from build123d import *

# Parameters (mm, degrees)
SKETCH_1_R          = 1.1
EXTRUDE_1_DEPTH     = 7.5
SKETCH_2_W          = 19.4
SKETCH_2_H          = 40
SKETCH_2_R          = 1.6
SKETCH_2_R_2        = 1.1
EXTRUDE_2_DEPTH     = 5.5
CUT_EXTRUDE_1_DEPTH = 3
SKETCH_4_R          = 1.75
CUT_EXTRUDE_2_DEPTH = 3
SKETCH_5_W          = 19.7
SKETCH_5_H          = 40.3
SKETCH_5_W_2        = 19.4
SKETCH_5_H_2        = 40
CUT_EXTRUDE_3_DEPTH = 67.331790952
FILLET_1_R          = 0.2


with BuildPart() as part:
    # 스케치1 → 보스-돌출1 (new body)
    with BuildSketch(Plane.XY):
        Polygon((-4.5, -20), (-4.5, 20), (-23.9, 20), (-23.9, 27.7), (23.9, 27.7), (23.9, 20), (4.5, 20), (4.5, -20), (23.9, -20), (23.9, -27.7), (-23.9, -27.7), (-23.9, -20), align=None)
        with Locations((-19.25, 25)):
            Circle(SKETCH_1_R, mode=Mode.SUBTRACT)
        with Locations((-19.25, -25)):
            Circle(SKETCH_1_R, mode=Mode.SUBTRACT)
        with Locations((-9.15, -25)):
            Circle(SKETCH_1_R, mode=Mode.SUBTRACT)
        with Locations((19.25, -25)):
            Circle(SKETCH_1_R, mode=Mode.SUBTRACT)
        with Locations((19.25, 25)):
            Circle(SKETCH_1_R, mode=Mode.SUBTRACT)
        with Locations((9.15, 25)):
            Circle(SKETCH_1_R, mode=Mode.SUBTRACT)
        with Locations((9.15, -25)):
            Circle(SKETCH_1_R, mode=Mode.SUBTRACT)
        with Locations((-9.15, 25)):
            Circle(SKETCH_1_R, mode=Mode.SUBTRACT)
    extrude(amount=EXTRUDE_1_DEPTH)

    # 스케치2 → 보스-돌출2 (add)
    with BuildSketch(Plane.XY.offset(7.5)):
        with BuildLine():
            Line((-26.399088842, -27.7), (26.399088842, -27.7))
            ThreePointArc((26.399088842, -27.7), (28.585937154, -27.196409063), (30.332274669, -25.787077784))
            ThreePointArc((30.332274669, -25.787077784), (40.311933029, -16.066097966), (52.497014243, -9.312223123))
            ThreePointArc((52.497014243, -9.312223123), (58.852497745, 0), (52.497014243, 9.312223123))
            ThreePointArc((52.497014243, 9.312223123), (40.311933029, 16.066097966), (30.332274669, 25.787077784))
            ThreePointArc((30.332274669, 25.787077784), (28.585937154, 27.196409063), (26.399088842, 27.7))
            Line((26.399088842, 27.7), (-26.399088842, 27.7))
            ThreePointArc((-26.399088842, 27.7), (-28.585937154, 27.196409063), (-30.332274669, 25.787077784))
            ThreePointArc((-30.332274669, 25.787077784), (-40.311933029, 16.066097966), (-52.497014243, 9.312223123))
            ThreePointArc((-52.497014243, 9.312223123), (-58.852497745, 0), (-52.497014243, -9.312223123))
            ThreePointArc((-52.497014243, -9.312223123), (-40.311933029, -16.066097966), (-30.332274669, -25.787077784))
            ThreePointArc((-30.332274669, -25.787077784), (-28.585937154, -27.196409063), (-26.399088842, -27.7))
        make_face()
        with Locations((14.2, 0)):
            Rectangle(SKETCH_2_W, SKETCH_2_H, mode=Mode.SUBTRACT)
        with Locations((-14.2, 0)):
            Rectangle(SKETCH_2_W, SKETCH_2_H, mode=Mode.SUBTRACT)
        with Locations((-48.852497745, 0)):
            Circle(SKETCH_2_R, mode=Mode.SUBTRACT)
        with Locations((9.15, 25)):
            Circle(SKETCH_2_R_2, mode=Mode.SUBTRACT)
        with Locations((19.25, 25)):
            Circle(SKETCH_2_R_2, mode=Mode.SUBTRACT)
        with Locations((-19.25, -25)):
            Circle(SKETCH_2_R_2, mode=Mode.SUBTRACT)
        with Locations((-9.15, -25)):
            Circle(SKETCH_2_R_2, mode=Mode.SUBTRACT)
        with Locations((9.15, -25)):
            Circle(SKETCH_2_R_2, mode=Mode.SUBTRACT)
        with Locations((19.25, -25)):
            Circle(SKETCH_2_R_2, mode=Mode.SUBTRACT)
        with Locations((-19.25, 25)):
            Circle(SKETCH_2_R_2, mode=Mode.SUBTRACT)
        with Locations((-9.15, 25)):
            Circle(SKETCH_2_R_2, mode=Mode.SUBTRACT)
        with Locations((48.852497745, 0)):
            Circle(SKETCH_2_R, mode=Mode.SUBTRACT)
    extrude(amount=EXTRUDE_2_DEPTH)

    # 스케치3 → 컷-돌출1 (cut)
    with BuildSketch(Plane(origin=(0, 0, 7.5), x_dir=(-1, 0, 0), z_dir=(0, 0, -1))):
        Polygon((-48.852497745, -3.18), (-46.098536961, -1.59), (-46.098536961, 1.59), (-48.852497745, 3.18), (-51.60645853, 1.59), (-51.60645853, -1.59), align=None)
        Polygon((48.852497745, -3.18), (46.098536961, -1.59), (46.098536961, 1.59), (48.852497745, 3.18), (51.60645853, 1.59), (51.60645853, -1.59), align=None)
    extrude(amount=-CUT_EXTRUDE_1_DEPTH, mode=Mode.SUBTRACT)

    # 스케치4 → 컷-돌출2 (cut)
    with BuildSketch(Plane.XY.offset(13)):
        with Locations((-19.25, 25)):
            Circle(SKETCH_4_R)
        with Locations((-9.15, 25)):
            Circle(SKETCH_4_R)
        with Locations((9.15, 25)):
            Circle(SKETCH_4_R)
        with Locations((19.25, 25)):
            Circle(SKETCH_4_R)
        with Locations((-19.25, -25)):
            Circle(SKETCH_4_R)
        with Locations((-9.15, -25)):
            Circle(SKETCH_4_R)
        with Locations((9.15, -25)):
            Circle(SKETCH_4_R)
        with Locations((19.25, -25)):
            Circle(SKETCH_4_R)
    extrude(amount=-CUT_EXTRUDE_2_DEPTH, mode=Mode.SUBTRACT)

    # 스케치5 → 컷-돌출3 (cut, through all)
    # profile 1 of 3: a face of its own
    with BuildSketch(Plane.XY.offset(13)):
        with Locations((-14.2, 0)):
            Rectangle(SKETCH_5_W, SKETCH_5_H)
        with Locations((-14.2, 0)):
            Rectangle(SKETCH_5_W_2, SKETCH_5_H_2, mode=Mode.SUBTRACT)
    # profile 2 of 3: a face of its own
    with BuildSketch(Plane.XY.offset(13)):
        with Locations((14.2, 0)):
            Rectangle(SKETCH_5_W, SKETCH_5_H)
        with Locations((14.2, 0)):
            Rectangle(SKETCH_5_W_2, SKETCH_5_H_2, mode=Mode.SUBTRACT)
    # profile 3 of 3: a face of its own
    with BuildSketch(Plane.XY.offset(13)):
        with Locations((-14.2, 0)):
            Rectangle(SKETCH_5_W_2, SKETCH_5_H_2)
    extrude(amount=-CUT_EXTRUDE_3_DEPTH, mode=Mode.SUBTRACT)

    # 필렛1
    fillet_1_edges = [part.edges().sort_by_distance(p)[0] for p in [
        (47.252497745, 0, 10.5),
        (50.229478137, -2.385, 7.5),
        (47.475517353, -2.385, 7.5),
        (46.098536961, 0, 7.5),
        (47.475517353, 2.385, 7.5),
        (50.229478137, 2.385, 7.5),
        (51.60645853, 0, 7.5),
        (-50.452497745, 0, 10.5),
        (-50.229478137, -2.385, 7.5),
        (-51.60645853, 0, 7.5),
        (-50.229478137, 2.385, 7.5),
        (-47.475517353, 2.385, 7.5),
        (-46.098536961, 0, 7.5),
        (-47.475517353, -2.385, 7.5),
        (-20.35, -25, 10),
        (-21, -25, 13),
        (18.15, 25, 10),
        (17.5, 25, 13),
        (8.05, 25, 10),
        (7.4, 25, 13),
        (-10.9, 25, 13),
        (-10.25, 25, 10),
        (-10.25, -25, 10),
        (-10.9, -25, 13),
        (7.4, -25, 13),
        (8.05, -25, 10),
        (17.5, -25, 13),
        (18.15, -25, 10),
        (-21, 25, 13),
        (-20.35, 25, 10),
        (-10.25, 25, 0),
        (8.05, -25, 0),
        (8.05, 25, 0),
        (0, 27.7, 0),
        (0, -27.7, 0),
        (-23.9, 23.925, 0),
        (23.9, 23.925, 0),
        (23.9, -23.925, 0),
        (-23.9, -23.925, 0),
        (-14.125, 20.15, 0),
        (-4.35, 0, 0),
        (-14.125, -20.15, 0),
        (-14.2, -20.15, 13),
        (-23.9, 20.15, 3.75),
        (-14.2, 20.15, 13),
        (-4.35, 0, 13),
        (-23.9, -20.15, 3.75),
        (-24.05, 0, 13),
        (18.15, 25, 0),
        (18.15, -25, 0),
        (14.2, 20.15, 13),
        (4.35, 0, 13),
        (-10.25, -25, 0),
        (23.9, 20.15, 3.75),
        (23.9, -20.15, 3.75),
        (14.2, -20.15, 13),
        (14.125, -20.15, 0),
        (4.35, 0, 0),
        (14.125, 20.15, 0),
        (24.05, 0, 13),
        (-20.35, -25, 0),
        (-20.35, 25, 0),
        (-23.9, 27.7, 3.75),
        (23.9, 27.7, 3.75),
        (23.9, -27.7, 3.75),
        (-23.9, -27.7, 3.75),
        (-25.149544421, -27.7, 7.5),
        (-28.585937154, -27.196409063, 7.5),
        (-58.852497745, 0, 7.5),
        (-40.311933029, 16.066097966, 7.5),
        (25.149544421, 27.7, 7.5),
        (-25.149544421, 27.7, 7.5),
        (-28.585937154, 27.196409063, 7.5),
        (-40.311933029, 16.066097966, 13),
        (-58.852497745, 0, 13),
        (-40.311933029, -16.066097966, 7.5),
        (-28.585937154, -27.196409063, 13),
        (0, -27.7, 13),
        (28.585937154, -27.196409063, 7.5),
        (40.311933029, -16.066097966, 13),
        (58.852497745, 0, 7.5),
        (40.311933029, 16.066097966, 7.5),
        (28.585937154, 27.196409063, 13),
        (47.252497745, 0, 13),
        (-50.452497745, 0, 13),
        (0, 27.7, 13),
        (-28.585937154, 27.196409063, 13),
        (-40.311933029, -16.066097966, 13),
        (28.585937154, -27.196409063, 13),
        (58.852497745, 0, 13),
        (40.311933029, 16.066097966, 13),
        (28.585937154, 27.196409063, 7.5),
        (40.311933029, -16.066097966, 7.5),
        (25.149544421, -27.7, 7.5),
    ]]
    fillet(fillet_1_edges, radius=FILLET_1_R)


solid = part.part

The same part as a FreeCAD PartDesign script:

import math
import FreeCAD as App
import Part
import Sketcher

V = App.Vector
Q = App.Units.Quantity


def edges_at(feature, points):
    """Names of the edges that pass closest to the given points."""
    edges = feature.Shape.Edges
    near = lambda p: min(range(len(edges)), key=lambda i: edges[i].distToShape(Part.Vertex(*p))[0])
    return sorted({f"Edge{near(p) + 1}" for p in points})


def add_polygon(sketch, points):
    """Adds a closed chain of lines whose ends are joined by coincident constraints."""
    first, n = sketch.GeometryCount, len(points)
    for a, b in zip(points, points[1:] + points[:1]):
        sketch.addGeometry(Part.LineSegment(App.Vector(*a, 0), App.Vector(*b, 0)), False)
    for i in range(n):
        sketch.addConstraint(Sketcher.Constraint("Coincident", first + i, 2, first + (i + 1) % n, 1))

doc = App.newDocument("Part")
body = doc.addObject("PartDesign::Body", "Body")

# Sketch on XY plane
sketch1 = body.newObject("Sketcher::SketchObject", "Sketch")
sketch1.AttachmentSupport = (doc.getObject("XY_Plane"), [""])
sketch1.MapMode = "FlatFace"
add_polygon(sketch1, [(-4.5, 20), (-4.5, -20), (-23.9, -20), (-23.9, -27.7), (23.9, -27.7), (23.9, -20), (4.5, -20), (4.5, 20), (23.9, 20), (23.9, 27.7), (-23.9, 27.7), (-23.9, 20)])  # lines 0-11
sketch1.addGeometry(Part.Circle(V(19.2, -25, 0), V(0, 0, 1), 1.1), False)  # 12
sketch1.addGeometry(Part.Circle(V(9.2, -25, 0), V(0, 0, 1), 1.1), False)  # 13
sketch1.addGeometry(Part.Circle(V(-9.2, -25, 0), V(0, 0, 1), 1.1), False)  # 14
sketch1.addGeometry(Part.Circle(V(-19.2, -25, 0), V(0, 0, 1), 1.1), False)  # 15
sketch1.addGeometry(Part.Circle(V(19.2, 25, 0), V(0, 0, 1), 1.1), False)  # 16
sketch1.addGeometry(Part.Circle(V(9.2, 25, 0), V(0, 0, 1), 1.1), False)  # 17
sketch1.addGeometry(Part.Circle(V(-9.2, 25, 0), V(0, 0, 1), 1.1), False)  # 18
sketch1.addGeometry(Part.Circle(V(-19.2, 25, 0), V(0, 0, 1), 1.1), False)  # 19
sketch1.addConstraint([
    Sketcher.Constraint("Vertical", 0),
    Sketcher.Constraint("Horizontal", 1),
    Sketcher.Constraint("Vertical", 2),
    Sketcher.Constraint("Horizontal", 3),
    Sketcher.Constraint("Vertical", 4),
    Sketcher.Constraint("Horizontal", 5),
    Sketcher.Constraint("Vertical", 6),
    Sketcher.Constraint("Horizontal", 7),
    Sketcher.Constraint("Vertical", 8),
    Sketcher.Constraint("Horizontal", 9),
    Sketcher.Constraint("Vertical", 10),
    Sketcher.Constraint("Horizontal", 11),
    Sketcher.Constraint("Equal", 12, 13),
    Sketcher.Constraint("Equal", 13, 14),
    Sketcher.Constraint("Equal", 14, 15),
    Sketcher.Constraint("Equal", 15, 16),
    Sketcher.Constraint("Equal", 16, 17),
    Sketcher.Constraint("Equal", 17, 18),
    Sketcher.Constraint("Equal", 18, 19),
    Sketcher.Constraint("Symmetric", 15, 3, 16, 3, -1, 1),
    Sketcher.Constraint("Symmetric", 14, 3, 17, 3, -1, 1),
    Sketcher.Constraint("Symmetric", 13, 3, 18, 3, -1, 1),
    Sketcher.Constraint("Symmetric", 12, 3, 19, 3, -1, 1),
    Sketcher.Constraint("Symmetric", 0, 2, 6, 2, -1, 1),
    Sketcher.Constraint("Symmetric", 2, 2, 8, 2, -1, 1),
    Sketcher.Constraint("Symmetric", 4, 2, 10, 2, -1, 1),
    Sketcher.Constraint("Symmetric", 13, 3, 14, 3, -2),
    Sketcher.Constraint("Symmetric", 12, 3, 15, 3, -2),
    Sketcher.Constraint("Symmetric", 1, 2, 4, 2, -2),
    Sketcher.Constraint("Horizontal", 12, 3, 13, 3),
    Sketcher.Constraint("Diameter", 12, 2.2),
    Sketcher.Constraint("DistanceY", 0, 2, 0, 1, 40.0),
    Sketcher.Constraint("DistanceX", 1, 2, 1, 1, 19.4),
    Sketcher.Constraint("DistanceX", 3, 1, 3, 2, 47.8),
    Sketcher.Constraint("DistanceY", 2, 2, 2, 1, 7.7),
    Sketcher.Constraint("DistanceY", 12, 3, -1, 1, 25.0),
    Sketcher.Constraint("DistanceX", 13, 3, 12, 3, 10.1),
    Sketcher.Constraint("DistanceX", 14, 3, 13, 3, 18.3),
])
pad1 = body.newObject("PartDesign::Pad", "Pad")
pad1.Profile = sketch1
pad1.Length = 7.5

# Sketch on XY plane
sketch2 = body.newObject("Sketcher::SketchObject", "Sketch001")
sketch2.AttachmentSupport = (doc.getObject("XY_Plane"), [""])
sketch2.MapMode = "FlatFace"
sketch2.AttachmentOffset = App.Placement(V(0, 0, 7.5), App.Rotation())
sketch2.addGeometry(Part.LineSegment(V(-26.4, -27.7, 0), V(26.4, -27.7, 0)), False)  # 0
sketch2.addGeometry(Part.ArcOfCircle(Part.Circle(V(26.4, -22.7, 0), V(0, 0, 1), 5), math.radians(-90), math.radians(-38)), False)  # 1
sketch2.addGeometry(Part.ArcOfCircle(Part.Circle(V(71.6, -58.2, 0), V(0, 0, 1), 52.5), math.radians(111), math.radians(142)), False)  # 2
sketch2.addGeometry(Part.ArcOfCircle(Part.Circle(V(48.9, 0, 0), V(0, 0, 1), 10), math.radians(-69), math.radians(69)), False)  # 3
sketch2.addGeometry(Part.ArcOfCircle(Part.Circle(V(71.6, 58.2, 0), V(0, 0, 1), 52.5), math.radians(-142), math.radians(-111)), False)  # 4
sketch2.addGeometry(Part.ArcOfCircle(Part.Circle(V(26.4, 22.7, 0), V(0, 0, 1), 5), math.radians(38), math.radians(90)), False)  # 5
sketch2.addGeometry(Part.LineSegment(V(26.4, 27.7, 0), V(-26.4, 27.7, 0)), False)  # 6
sketch2.addGeometry(Part.ArcOfCircle(Part.Circle(V(-26.4, 22.7, 0), V(0, 0, 1), 5), math.radians(90), math.radians(142)), False)  # 7
sketch2.addGeometry(Part.ArcOfCircle(Part.Circle(V(-71.6, 58.2, 0), V(0, 0, 1), 52.5), math.radians(-69), math.radians(-38)), False)  # 8
sketch2.addGeometry(Part.ArcOfCircle(Part.Circle(V(-48.9, 0, 0), V(0, 0, 1), 10), math.radians(111), math.radians(249)), False)  # 9
sketch2.addGeometry(Part.ArcOfCircle(Part.Circle(V(-71.6, -58.2, 0), V(0, 0, 1), 52.5), math.radians(38), math.radians(69)), False)  # 10
sketch2.addGeometry(Part.ArcOfCircle(Part.Circle(V(-26.4, -22.7, 0), V(0, 0, 1), 5), math.radians(-142), math.radians(-90)), False)  # 11
sketch2.addGeometry(Part.Circle(V(-19.2, -25, 0), V(0, 0, 1), 1.1), False)  # 12
sketch2.addGeometry(Part.Circle(V(-9.2, -25, 0), V(0, 0, 1), 1.1), False)  # 13
sketch2.addGeometry(Part.Circle(V(9.2, -25, 0), V(0, 0, 1), 1.1), False)  # 14
sketch2.addGeometry(Part.Circle(V(19.2, -25, 0), V(0, 0, 1), 1.1), False)  # 15
sketch2.addGeometry(Part.Circle(V(-48.9, 0, 0), V(0, 0, 1), 1.6), False)  # 16
add_polygon(sketch2, [(-4.5, -20), (-23.9, -20), (-23.9, 20), (-4.5, 20)])  # lines 17-20
sketch2.addGeometry(Part.Circle(V(-19.2, 25, 0), V(0, 0, 1), 1.1), False)  # 21
sketch2.addGeometry(Part.Circle(V(-9.2, 25, 0), V(0, 0, 1), 1.1), False)  # 22
add_polygon(sketch2, [(23.9, -20), (4.5, -20), (4.5, 20), (23.9, 20)])  # lines 23-26
sketch2.addGeometry(Part.Circle(V(48.9, 0, 0), V(0, 0, 1), 1.6), False)  # 27
sketch2.addGeometry(Part.Circle(V(9.2, 25, 0), V(0, 0, 1), 1.1), False)  # 28
sketch2.addGeometry(Part.Circle(V(19.2, 25, 0), V(0, 0, 1), 1.1), False)  # 29
sketch2.addConstraint([
    Sketcher.Constraint("Tangent", 0, 2, 1, 1),
    Sketcher.Constraint("Tangent", 1, 2, 2, 2),
    Sketcher.Constraint("Tangent", 2, 1, 3, 1),
    Sketcher.Constraint("Tangent", 3, 2, 4, 2),
    Sketcher.Constraint("Tangent", 4, 1, 5, 1),
    Sketcher.Constraint("Tangent", 5, 2, 6, 1),
    Sketcher.Constraint("Tangent", 6, 2, 7, 1),
    Sketcher.Constraint("Tangent", 7, 2, 8, 2),
    Sketcher.Constraint("Tangent", 8, 1, 9, 1),
    Sketcher.Constraint("Tangent", 9, 2, 10, 2),
    Sketcher.Constraint("Tangent", 10, 1, 11, 1),
    Sketcher.Constraint("Tangent", 11, 2, 0, 1),
    Sketcher.Constraint("Horizontal", 0),
    Sketcher.Constraint("Horizontal", 6),
    Sketcher.Constraint("Horizontal", 17),
    Sketcher.Constraint("Vertical", 18),
    Sketcher.Constraint("Horizontal", 19),
    Sketcher.Constraint("Vertical", 20),
    Sketcher.Constraint("Horizontal", 23),
    Sketcher.Constraint("Vertical", 24),
    Sketcher.Constraint("Horizontal", 25),
    Sketcher.Constraint("Vertical", 26),
    Sketcher.Constraint("Coincident", 16, 3, 9, 3),
    Sketcher.Constraint("Coincident", 27, 3, 3, 3),
    Sketcher.Constraint("Equal", 2, 4),
    Sketcher.Constraint("Equal", 1, 5),
    Sketcher.Constraint("Equal", 5, 7),
    Sketcher.Constraint("Equal", 4, 8),
    Sketcher.Constraint("Equal", 3, 9),
    Sketcher.Constraint("Equal", 8, 10),
    Sketcher.Constraint("Equal", 7, 11),
    Sketcher.Constraint("Equal", 12, 13),
    Sketcher.Constraint("Equal", 13, 14),
    Sketcher.Constraint("Equal", 14, 15),
    Sketcher.Constraint("Equal", 15, 21),
    Sketcher.Constraint("Equal", 21, 22),
    Sketcher.Constraint("Equal", 16, 27),
    Sketcher.Constraint("Equal", 22, 28),
    Sketcher.Constraint("Equal", 28, 29),
    Sketcher.Constraint("Symmetric", 1, 3, 7, 3, -1, 1),
    Sketcher.Constraint("Symmetric", 3, 3, 9, 3, -1, 1),
    Sketcher.Constraint("Symmetric", 15, 3, 21, 3, -1, 1),
    Sketcher.Constraint("Symmetric", 14, 3, 22, 3, -1, 1),
    Sketcher.Constraint("Symmetric", 13, 3, 28, 3, -1, 1),
    Sketcher.Constraint("Symmetric", 12, 3, 29, 3, -1, 1),
    Sketcher.Constraint("Symmetric", 19, 2, 23, 2, -1, 1),
    Sketcher.Constraint("Symmetric", 17, 2, 25, 2, -1, 1),
    Sketcher.Constraint("Symmetric", 4, 3, 8, 3, -2),
    Sketcher.Constraint("Symmetric", 13, 3, 14, 3, -2),
    Sketcher.Constraint("Symmetric", 12, 3, 15, 3, -2),
    Sketcher.Constraint("Horizontal", 2, 3, 10, 3),
    Sketcher.Constraint("Horizontal", 12, 3, 13, 3),
    Sketcher.Constraint("Horizontal", 20, 2, 23, 2),
    Sketcher.Constraint("Radius", 1, 5.0),
    Sketcher.Constraint("Radius", 3, 10.0),
    Sketcher.Constraint("Diameter", 12, 2.2),
    Sketcher.Constraint("Diameter", 16, 3.2),
    Sketcher.Constraint("Radius", 2, 52.5),
    Sketcher.Constraint("DistanceY", 18, 1, 18, 2, 40.0),
    Sketcher.Constraint("DistanceX", 17, 2, 17, 1, 19.4),
    Sketcher.Constraint("DistanceY", 12, 3, -1, 1, 25.0),
    Sketcher.Constraint("DistanceX", 20, 2, 23, 2, 9.0),
    Sketcher.Constraint("DistanceY", 1, 3, -1, 1, 22.7),
    Sketcher.Constraint("DistanceX", 12, 3, 13, 3, 10.1),
    Sketcher.Constraint("DistanceX", 13, 3, 14, 3, 18.3),
    Sketcher.Constraint("DistanceX", 0, 1, 0, 2, 52.798178),
    Sketcher.Constraint("DistanceX", 1, 3, 3, 3, 22.453409),
])
pad2 = body.newObject("PartDesign::Pad", "Pad001")
pad2.Profile = sketch2
pad2.Length = 5.5

# Sketch on XY plane
sketch3 = body.newObject("Sketcher::SketchObject", "Sketch002")
sketch3.AttachmentSupport = (doc.getObject("XY_Plane"), [""])
sketch3.MapMode = "FlatFace"
sketch3.AttachmentOffset = App.Placement(V(0, 0, 7.5), App.Rotation())
add_polygon(sketch3, [(48.9, -3.2), (46.1, -1.6), (46.1, 1.6), (48.9, 3.2), (51.6, 1.6), (51.6, -1.6)])  # lines 0-5
add_polygon(sketch3, [(-46.1, -1.6), (-48.9, -3.2), (-51.6, -1.6), (-51.6, 1.6), (-48.9, 3.2), (-46.1, 1.6)])  # lines 6-11
sketch3.addConstraint([
    Sketcher.Constraint("Vertical", 1),
    Sketcher.Constraint("Vertical", 4),
    Sketcher.Constraint("Vertical", 8),
    Sketcher.Constraint("Vertical", 11),
    Sketcher.Constraint("Symmetric", 2, 2, 6, 2, -1, 1),
    Sketcher.Constraint("Symmetric", 3, 2, 7, 2, -1, 1),
    Sketcher.Constraint("Symmetric", 5, 2, 9, 2, -1, 1),
    Sketcher.Constraint("Symmetric", 0, 2, 10, 2, -1, 1),
    Sketcher.Constraint("Symmetric", 5, 2, 6, 2, -2),
    Sketcher.Constraint("Parallel", 0, 3),
    Sketcher.Constraint("Parallel", 2, 5),
    Sketcher.Constraint("Parallel", 5, 6),
    Sketcher.Constraint("Parallel", 6, 9),
    Sketcher.Constraint("Horizontal", 1, 2, 3, 2),
    Sketcher.Constraint("Horizontal", 0, 2, 4, 2),
    Sketcher.Constraint("Angle", 0, Q("150 deg")),
    Sketcher.Constraint("DistanceY", 1, 1, 1, 2, 3.18),
    Sketcher.Constraint("Distance", 0, 3.18),
    Sketcher.Constraint("DistanceX", -1, 1, 3, 2, 51.606459),
])
pocket1 = body.newObject("PartDesign::Pocket", "Pocket")
pocket1.Profile = sketch3
pocket1.Length = 3
pocket1.Reversed = True

# Sketch on XY plane
sketch4 = body.newObject("Sketcher::SketchObject", "Sketch003")
sketch4.AttachmentSupport = (doc.getObject("XY_Plane"), [""])
sketch4.MapMode = "FlatFace"
sketch4.AttachmentOffset = App.Placement(V(0, 0, 13), App.Rotation())
sketch4.addGeometry([
    Part.Circle(V(-19.2, 25, 0), V(0, 0, 1), 1.8),  # 0
    Part.Circle(V(-9.2, 25, 0), V(0, 0, 1), 1.8),  # 1
    Part.Circle(V(9.2, 25, 0), V(0, 0, 1), 1.8),  # 2
    Part.Circle(V(19.2, 25, 0), V(0, 0, 1), 1.8),  # 3
    Part.Circle(V(-19.2, -25, 0), V(0, 0, 1), 1.8),  # 4
    Part.Circle(V(-9.2, -25, 0), V(0, 0, 1), 1.8),  # 5
    Part.Circle(V(9.2, -25, 0), V(0, 0, 1), 1.8),  # 6
    Part.Circle(V(19.2, -25, 0), V(0, 0, 1), 1.8),  # 7
], False)
sketch4.addConstraint([
    Sketcher.Constraint("Equal", 0, 1),
    Sketcher.Constraint("Equal", 1, 2),
    Sketcher.Constraint("Equal", 2, 3),
    Sketcher.Constraint("Equal", 3, 4),
    Sketcher.Constraint("Equal", 4, 5),
    Sketcher.Constraint("Equal", 5, 6),
    Sketcher.Constraint("Equal", 6, 7),
    Sketcher.Constraint("Symmetric", 3, 3, 4, 3, -1, 1),
    Sketcher.Constraint("Symmetric", 2, 3, 5, 3, -1, 1),
    Sketcher.Constraint("Symmetric", 1, 3, 6, 3, -1, 1),
    Sketcher.Constraint("Symmetric", 0, 3, 7, 3, -1, 1),
    Sketcher.Constraint("Symmetric", 1, 3, 2, 3, -2),
    Sketcher.Constraint("Symmetric", 0, 3, 3, 3, -2),
    Sketcher.Constraint("Horizontal", 0, 3, 1, 3),
    Sketcher.Constraint("Diameter", 0, 3.5),
    Sketcher.Constraint("DistanceY", -1, 1, 0, 3, 25.0),
    Sketcher.Constraint("DistanceX", 0, 3, 1, 3, 10.1),
    Sketcher.Constraint("DistanceX", 1, 3, 2, 3, 18.3),
])
pocket2 = body.newObject("PartDesign::Pocket", "Pocket001")
pocket2.Profile = sketch4
pocket2.Length = 3

# Sketch on XY plane
sketch5 = body.newObject("Sketcher::SketchObject", "Sketch004")
sketch5.AttachmentSupport = (doc.getObject("XY_Plane"), [""])
sketch5.MapMode = "FlatFace"
sketch5.AttachmentOffset = App.Placement(V(0, 0, 13), App.Rotation())
add_polygon(sketch5, [(-24, 20), (-24, -20), (-4, -20), (-4, 20)])  # lines 0-3
add_polygon(sketch5, [(4, 20), (4, -20), (24, -20), (24, 20)])  # lines 4-7
add_polygon(sketch5, [(24, -20), (4, -20), (4, 20), (24, 20)])  # lines 8-11
sketch5.addConstraint([
    Sketcher.Constraint("Vertical", 0),
    Sketcher.Constraint("Horizontal", 1),
    Sketcher.Constraint("Vertical", 2),
    Sketcher.Constraint("Horizontal", 3),
    Sketcher.Constraint("Vertical", 4),
    Sketcher.Constraint("Horizontal", 5),
    Sketcher.Constraint("Vertical", 6),
    Sketcher.Constraint("Horizontal", 7),
    Sketcher.Constraint("Horizontal", 8),
    Sketcher.Constraint("Vertical", 9),
    Sketcher.Constraint("Horizontal", 10),
    Sketcher.Constraint("Vertical", 11),
    Sketcher.Constraint("Symmetric", 2, 2, 4, 2, -1, 1),
    Sketcher.Constraint("Symmetric", 0, 2, 6, 2, -1, 1),
    Sketcher.Constraint("Horizontal", 1, 2, 4, 2),
    Sketcher.Constraint("DistanceY", 9, 1, 9, 2, 40.0),
    Sketcher.Constraint("DistanceX", 1, 1, 1, 2, 19.7),
    Sketcher.Constraint("DistanceX", 8, 2, 8, 1, 19.4),
    Sketcher.Constraint("DistanceY", 0, 2, 0, 1, 40.3),
    Sketcher.Constraint("DistanceY", 8, 2, -1, 1, 20.0),
    Sketcher.Constraint("DistanceX", -1, 1, 8, 2, 4.5),
    Sketcher.Constraint("DistanceX", 1, 2, 4, 2, 8.7),
])
pocket3 = body.newObject("PartDesign::Pocket", "Pocket002")
pocket3.Profile = sketch5
pocket3.Length = 67.331791
doc.recompute()

fillet = body.newObject("PartDesign::Fillet", "Fillet")
fillet.Base = (pocket3, edges_at(pocket3, [
    (47.252, 0, 10.5),
    (50.229, -2.385, 7.5),
    (47.476, -2.385, 7.5),
    (46.099, 0, 7.5),
    (47.476, 2.385, 7.5),
    (50.229, 2.385, 7.5),
    (51.606, 0, 7.5),
    (-50.452, 0, 10.5),
    (-50.229, -2.385, 7.5),
    (-51.606, 0, 7.5),
    (-50.229, 2.385, 7.5),
    (-47.476, 2.385, 7.5),
    (-46.099, 0, 7.5),
    (-47.476, -2.385, 7.5),
    (-20.35, -25, 10),
    (-21, -25, 13),
    (18.15, 25, 10),
    (17.5, 25, 13),
    (8.05, 25, 10),
    (7.4, 25, 13),
    (-10.9, 25, 13),
    (-10.25, 25, 10),
    (-10.25, -25, 10),
    (-10.9, -25, 13),
    (7.4, -25, 13),
    (8.05, -25, 10),
    (17.5, -25, 13),
    (18.15, -25, 10),
    (-21, 25, 13),
    (-20.35, 25, 10),
    (-10.25, 25, 0),
    (8.05, -25, 0),
    (8.05, 25, 0),
    (0, 27.7, 0),
    (0, -27.7, 0),
    (-23.9, 23.925, 0),
    (23.9, 23.925, 0),
    (23.9, -23.925, 0),
    (-23.9, -23.925, 0),
    (-14.125, 20.15, 0),
    (-4.35, 0, 0),
    (-14.125, -20.15, 0),
    (-14.2, -20.15, 13),
    (-23.9, 20.15, 3.75),
    (-14.2, 20.15, 13),
    (-4.35, 0, 13),
    (-23.9, -20.15, 3.75),
    (-24.05, 0, 13),
    (18.15, 25, 0),
    (18.15, -25, 0),
    (14.2, 20.15, 13),
    (4.35, 0, 13),
    (-10.25, -25, 0),
    (23.9, 20.15, 3.75),
    (23.9, -20.15, 3.75),
    (14.2, -20.15, 13),
    (14.125, -20.15, 0),
    (4.35, 0, 0),
    (14.125, 20.15, 0),
    (24.05, 0, 13),
    (-20.35, -25, 0),
    (-20.35, 25, 0),
    (-23.9, 27.7, 3.75),
    (23.9, 27.7, 3.75),
    (23.9, -27.7, 3.75),
    (-23.9, -27.7, 3.75),
    (-25.15, -27.7, 7.5),
    (-28.586, -27.196, 7.5),
    (-58.852, 0, 7.5),
    (-40.312, 16.066, 7.5),
    (25.15, 27.7, 7.5),
    (-25.15, 27.7, 7.5),
    (-28.586, 27.196, 7.5),
    (-40.312, 16.066, 13),
    (-58.852, 0, 13),
    (-40.312, -16.066, 7.5),
    (-28.586, -27.196, 13),
    (0, -27.7, 13),
    (28.586, -27.196, 7.5),
    (40.312, -16.066, 13),
    (58.852, 0, 7.5),
    (40.312, 16.066, 7.5),
    (28.586, 27.196, 13),
    (47.252, 0, 13),
    (-50.452, 0, 13),
    (0, 27.7, 13),
    (-28.586, 27.196, 13),
    (-40.312, -16.066, 13),
    (28.586, -27.196, 13),
    (58.852, 0, 13),
    (40.312, 16.066, 13),
    (28.586, 27.196, 7.5),
    (40.312, -16.066, 7.5),
    (25.15, -27.7, 7.5),
]))
fillet.Radius = 0.2

doc.recompute()
